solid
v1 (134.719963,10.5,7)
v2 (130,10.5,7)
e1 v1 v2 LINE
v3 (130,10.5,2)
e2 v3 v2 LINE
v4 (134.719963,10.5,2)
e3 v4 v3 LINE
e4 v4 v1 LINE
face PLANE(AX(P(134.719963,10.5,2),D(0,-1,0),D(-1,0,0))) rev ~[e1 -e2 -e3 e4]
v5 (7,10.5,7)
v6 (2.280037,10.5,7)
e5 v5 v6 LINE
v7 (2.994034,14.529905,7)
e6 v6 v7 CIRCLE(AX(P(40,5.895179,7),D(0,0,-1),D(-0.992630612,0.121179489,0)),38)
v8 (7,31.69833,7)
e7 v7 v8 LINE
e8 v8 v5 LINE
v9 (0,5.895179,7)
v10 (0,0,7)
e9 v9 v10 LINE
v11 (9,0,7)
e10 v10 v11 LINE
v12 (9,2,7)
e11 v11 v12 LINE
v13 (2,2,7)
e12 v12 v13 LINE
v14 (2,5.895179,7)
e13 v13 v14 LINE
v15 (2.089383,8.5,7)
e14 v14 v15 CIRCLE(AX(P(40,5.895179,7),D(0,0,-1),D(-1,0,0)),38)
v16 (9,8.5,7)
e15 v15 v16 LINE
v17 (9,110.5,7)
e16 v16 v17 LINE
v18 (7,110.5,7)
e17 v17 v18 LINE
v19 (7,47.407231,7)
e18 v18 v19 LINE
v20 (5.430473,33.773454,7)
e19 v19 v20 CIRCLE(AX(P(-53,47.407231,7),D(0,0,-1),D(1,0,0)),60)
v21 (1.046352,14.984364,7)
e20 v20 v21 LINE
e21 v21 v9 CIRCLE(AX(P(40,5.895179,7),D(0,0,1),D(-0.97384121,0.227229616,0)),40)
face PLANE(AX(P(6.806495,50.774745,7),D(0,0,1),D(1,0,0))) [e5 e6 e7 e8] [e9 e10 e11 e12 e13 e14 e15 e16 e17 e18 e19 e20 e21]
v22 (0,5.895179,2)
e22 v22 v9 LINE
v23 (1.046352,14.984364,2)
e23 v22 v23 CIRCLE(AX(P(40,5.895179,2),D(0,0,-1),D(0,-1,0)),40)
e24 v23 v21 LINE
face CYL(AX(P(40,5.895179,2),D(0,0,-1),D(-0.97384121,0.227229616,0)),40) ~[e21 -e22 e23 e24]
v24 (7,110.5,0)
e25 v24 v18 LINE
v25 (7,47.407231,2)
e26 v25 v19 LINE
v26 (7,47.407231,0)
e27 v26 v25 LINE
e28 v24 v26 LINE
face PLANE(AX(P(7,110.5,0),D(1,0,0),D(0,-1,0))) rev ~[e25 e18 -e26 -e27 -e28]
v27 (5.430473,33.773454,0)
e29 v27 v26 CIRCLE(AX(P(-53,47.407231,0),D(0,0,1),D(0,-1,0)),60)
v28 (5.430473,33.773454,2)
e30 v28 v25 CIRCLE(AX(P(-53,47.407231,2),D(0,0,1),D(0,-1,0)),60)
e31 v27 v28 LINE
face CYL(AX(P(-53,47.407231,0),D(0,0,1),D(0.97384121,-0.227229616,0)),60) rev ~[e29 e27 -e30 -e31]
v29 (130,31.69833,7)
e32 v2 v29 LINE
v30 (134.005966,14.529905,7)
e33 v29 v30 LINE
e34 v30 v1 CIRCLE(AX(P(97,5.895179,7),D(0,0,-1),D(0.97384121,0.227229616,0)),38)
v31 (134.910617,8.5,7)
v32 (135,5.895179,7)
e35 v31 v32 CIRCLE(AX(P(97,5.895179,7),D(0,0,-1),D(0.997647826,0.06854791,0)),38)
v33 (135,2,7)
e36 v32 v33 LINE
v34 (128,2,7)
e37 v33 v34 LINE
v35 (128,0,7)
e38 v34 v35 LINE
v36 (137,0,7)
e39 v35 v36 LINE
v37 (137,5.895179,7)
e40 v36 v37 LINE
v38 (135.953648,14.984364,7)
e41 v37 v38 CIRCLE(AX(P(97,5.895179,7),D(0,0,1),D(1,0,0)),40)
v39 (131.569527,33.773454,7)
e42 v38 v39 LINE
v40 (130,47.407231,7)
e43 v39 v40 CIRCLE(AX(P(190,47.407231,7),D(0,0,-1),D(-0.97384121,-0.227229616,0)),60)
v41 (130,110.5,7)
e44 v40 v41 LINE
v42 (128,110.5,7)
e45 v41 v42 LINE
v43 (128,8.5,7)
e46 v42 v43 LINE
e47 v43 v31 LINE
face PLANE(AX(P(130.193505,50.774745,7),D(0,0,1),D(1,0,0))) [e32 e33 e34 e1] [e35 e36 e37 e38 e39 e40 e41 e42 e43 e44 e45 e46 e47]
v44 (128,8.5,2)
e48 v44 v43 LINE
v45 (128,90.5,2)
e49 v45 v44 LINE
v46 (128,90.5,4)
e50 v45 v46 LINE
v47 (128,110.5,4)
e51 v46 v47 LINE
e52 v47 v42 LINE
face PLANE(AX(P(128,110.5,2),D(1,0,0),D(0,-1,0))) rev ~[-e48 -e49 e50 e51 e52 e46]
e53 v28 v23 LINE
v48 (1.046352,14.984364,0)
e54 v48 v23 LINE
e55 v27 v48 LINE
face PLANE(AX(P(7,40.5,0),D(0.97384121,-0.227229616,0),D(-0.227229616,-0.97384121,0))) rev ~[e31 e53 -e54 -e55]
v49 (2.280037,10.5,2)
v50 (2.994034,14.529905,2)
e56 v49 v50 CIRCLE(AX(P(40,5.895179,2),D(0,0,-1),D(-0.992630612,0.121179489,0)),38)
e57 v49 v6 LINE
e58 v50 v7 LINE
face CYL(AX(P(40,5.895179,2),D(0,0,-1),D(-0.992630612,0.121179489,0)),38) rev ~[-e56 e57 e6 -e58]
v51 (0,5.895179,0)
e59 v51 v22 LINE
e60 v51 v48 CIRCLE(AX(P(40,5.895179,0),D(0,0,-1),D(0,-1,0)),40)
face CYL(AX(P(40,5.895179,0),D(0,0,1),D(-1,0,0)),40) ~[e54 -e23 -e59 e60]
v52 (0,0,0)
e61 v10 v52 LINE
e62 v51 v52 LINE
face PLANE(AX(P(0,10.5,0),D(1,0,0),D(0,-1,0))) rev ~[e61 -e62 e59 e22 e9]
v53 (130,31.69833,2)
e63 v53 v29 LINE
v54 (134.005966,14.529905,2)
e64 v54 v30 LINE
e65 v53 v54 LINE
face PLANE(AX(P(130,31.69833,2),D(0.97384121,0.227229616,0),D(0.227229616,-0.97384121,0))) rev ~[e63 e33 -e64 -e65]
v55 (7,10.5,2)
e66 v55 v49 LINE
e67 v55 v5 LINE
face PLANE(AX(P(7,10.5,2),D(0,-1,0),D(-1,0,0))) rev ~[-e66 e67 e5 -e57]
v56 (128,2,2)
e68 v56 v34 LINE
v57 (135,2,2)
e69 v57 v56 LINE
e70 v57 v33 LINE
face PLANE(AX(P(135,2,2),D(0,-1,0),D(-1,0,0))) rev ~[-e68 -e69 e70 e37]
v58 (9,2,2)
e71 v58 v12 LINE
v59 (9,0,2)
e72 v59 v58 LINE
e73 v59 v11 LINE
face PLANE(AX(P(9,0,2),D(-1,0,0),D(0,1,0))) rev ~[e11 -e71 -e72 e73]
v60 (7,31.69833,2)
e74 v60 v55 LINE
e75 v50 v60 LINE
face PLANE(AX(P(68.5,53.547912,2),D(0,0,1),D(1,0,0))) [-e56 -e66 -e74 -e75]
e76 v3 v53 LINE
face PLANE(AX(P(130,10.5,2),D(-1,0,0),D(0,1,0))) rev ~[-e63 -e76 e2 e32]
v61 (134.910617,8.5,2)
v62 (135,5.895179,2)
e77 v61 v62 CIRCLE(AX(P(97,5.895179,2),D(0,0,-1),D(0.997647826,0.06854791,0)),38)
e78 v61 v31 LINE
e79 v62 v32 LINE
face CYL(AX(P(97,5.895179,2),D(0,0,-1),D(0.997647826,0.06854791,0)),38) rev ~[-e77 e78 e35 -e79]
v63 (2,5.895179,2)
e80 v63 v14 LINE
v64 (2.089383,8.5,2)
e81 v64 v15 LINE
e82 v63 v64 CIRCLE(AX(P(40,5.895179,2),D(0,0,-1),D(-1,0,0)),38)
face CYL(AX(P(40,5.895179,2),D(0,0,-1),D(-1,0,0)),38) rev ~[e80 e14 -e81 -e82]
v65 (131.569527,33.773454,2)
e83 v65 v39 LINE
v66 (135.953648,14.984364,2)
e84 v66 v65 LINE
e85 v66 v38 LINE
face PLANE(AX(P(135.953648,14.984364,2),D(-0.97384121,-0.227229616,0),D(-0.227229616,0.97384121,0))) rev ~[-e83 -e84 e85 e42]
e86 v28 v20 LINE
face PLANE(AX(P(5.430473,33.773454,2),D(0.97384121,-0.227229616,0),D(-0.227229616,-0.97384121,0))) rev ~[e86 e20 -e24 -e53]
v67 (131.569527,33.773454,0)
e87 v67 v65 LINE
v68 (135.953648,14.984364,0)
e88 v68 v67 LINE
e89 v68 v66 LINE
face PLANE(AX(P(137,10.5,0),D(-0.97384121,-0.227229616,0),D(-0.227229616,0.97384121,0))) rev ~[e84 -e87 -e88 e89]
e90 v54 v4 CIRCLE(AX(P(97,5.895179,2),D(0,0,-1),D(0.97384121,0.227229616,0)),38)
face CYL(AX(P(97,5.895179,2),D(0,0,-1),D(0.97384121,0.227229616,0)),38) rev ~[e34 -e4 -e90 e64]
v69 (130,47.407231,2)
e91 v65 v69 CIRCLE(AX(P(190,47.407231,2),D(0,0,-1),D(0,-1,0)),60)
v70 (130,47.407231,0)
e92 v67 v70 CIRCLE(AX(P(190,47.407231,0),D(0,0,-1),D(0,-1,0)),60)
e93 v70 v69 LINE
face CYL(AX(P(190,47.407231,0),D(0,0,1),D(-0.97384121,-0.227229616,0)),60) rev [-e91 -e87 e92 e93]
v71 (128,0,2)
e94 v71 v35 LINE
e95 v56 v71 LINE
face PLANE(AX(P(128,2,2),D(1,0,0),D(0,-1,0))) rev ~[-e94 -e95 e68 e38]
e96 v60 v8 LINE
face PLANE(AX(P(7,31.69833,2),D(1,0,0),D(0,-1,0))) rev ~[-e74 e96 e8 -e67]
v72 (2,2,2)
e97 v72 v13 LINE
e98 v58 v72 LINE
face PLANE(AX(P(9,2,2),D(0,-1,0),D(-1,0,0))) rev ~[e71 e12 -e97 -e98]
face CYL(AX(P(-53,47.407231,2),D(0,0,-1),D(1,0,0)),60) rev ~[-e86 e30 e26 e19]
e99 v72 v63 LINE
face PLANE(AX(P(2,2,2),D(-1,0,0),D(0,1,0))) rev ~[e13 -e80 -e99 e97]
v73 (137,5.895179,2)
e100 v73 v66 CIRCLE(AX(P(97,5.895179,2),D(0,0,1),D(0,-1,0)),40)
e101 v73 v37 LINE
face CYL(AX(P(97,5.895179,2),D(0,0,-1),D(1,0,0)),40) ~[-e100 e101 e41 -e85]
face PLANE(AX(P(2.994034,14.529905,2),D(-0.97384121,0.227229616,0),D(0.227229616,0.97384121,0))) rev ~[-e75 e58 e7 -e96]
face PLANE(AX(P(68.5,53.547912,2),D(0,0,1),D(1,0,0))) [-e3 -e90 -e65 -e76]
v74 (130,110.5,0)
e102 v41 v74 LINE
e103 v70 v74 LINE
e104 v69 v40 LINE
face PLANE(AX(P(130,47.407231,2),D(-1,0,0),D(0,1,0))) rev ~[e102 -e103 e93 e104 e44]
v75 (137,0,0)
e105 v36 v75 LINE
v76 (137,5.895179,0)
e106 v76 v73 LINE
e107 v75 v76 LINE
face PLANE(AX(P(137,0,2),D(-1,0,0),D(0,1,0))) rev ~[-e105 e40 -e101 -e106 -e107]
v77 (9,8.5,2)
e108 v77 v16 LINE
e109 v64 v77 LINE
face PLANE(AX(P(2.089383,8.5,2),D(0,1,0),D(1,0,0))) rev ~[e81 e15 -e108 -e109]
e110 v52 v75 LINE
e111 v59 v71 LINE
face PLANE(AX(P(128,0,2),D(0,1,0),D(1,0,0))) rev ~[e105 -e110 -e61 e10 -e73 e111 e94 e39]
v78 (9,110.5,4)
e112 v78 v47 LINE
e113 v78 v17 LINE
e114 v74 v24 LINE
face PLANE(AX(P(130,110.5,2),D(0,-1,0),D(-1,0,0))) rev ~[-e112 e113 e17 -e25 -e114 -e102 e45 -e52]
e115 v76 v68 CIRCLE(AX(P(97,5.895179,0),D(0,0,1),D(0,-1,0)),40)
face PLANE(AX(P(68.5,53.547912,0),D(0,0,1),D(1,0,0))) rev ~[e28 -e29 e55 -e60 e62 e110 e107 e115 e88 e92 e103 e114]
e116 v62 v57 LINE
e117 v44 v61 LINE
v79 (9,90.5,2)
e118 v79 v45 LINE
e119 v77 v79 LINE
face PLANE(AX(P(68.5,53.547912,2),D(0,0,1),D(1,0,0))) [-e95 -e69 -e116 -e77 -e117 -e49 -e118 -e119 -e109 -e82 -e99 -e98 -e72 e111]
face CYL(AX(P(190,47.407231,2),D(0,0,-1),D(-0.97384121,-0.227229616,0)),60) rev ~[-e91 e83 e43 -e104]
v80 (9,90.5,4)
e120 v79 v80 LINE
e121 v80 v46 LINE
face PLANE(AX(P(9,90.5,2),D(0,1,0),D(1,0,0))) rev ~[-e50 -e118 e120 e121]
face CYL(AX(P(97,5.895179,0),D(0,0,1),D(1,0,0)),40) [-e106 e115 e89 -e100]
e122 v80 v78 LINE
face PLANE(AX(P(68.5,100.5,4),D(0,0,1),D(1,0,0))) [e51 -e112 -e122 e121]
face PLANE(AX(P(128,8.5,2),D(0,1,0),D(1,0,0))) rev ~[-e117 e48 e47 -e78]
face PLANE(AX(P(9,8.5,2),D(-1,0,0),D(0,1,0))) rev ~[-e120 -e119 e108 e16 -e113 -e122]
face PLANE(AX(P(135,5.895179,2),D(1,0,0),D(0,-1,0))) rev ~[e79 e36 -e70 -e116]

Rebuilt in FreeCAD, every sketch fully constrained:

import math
import FreeCAD as App
import Part
import Sketcher
from FreeCAD import Vector


def edges_at(feature, points):
    """Names of the edges that pass closest to the given points."""
    edges = feature.Shape.Edges
    near = lambda p: min(range(len(edges)), key=lambda i: edges[i].distToShape(Part.Vertex(*p))[0])
    return sorted({f"Edge{near(p) + 1}" for p in points})


def add_polygon(sketch, points):
    """Adds a closed chain of lines whose ends are joined by coincident constraints."""
    first, n = sketch.GeometryCount, len(points)
    for a, b in zip(points, points[1:] + points[:1]):
        sketch.addGeometry(Part.LineSegment(App.Vector(*a, 0), App.Vector(*b, 0)), False)
    for i in range(n):
        sketch.addConstraint(Sketcher.Constraint("Coincident", first + i, 2, first + (i + 1) % n, 1))

doc = App.newDocument("Part")
body = doc.addObject("PartDesign::Body", "Body")

sketch1 = doc.addObject("Sketcher::SketchObject", "Sketch")
body.addObject(sketch1)
sketch1.AttachmentSupport = (doc.XY_Plane, [""])
sketch1.MapMode = "FlatFace"
add_polygon(sketch1, [(0, 10), (0, 0), (137, 0), (137, 10), (130, 40), (130, 110), (7, 110), (7, 40)])
sketch1.addConstraint([
    Sketcher.Constraint("Vertical", 0),
    Sketcher.Constraint("Horizontal", 1),
    Sketcher.Constraint("Vertical", 2),
    Sketcher.Constraint("Vertical", 4),
    Sketcher.Constraint("Horizontal", 5),
    Sketcher.Constraint("Vertical", 6),
    Sketcher.Constraint("Coincident", 0, 2, -1, 1),
    Sketcher.Constraint("Horizontal", 3, 2, 6, 2),
    Sketcher.Constraint("Horizontal", 2, 2, 7, 2),
    Sketcher.Constraint("Equal", 3, 7),
    Sketcher.Constraint("DistanceX", 1, 1, 1, 2, 137.0),
    Sketcher.Constraint("DistanceX", 5, 2, 5, 1, 123.0),
    Sketcher.Constraint("DistanceY", 4, 1, 4, 2, 70.0),
    Sketcher.Constraint("DistanceY", 0, 2, 0, 1, 10.5),
    Sketcher.Constraint("DistanceY", 2, 2, 3, 2, 30.0),
])
pad1 = doc.addObject("PartDesign::Pad", "Pad")
body.addObject(pad1)
pad1.Profile = sketch1
pad1.Length = 2
doc.recompute()

fillet = doc.addObject("PartDesign::Fillet", "Fillet")
body.addObject(fillet)
fillet.Base = (pad1, edges_at(pad1, [(137, 10.5, 1), (0, 10.5, 1)]))
fillet.Radius = 40
doc.recompute()

fillet2 = doc.addObject("PartDesign::Fillet", "Fillet001")
body.addObject(fillet2)
fillet2.Base = (fillet, edges_at(fillet, [(7, 40.5, 1), (130, 40.5, 1)]))
fillet2.Radius = 60

sketch2 = doc.addObject("Sketcher::SketchObject", "Sketch001")
body.addObject(sketch2)
sketch2.AttachmentSupport = (doc.XY_Plane, [""])
sketch2.MapMode = "FlatFace"
sketch2.AttachmentOffset = App.Placement(Vector(0, 0, 2), App.Rotation())
sketch2.addGeometry([
    Part.LineSegment(Vector(130, 110.5, 0), Vector(128, 110.5, 0)),
    Part.LineSegment(Vector(128, 110.5, 0), Vector(128, 8.5, 0)),
    Part.LineSegment(Vector(128, 8.5, 0), Vector(134.9, 8.5, 0)),
    Part.ArcOfCircle(Part.Circle(Vector(97, 5.9, 0), Vector(0, 0, 1), 38), math.radians(0), math.radians(3.93)),
    Part.LineSegment(Vector(135, 5.9, 0), Vector(135, 2, 0)),
    Part.LineSegment(Vector(135, 2, 0), Vector(128, 2, 0)),
    Part.LineSegment(Vector(128, 2, 0), Vector(128, 0, 0)),
    Part.LineSegment(Vector(128, 0, 0), Vector(137, 0, 0)),
    Part.LineSegment(Vector(137, 0, 0), Vector(137, 5.9, 0)),
    Part.ArcOfCircle(Part.Circle(Vector(97, 5.9, 0), Vector(0, 0, 1), 40), math.radians(0), math.radians(13.13)),
    Part.LineSegment(Vector(136, 15, 0), Vector(131.6, 33.8, 0)),
    Part.ArcOfCircle(Part.Circle(Vector(190, 47.4, 0), Vector(0, 0, 1), 60), math.radians(180), math.radians(193.13)),
    Part.LineSegment(Vector(130, 47.4, 0), Vector(130, 110.5, 0)),
    Part.ArcOfCircle(Part.Circle(Vector(97, 5.9, 0), Vector(0, 0, 1), 38), math.radians(6.96), math.radians(13.13)),
    Part.LineSegment(Vector(134.7, 10.5, 0), Vector(130, 10.5, 0)),
    Part.LineSegment(Vector(130, 10.5, 0), Vector(130, 31.7, 0)),
    Part.LineSegment(Vector(130, 31.7, 0), Vector(134, 14.5, 0)),
    Part.LineSegment(Vector(9, 8.5, 0), Vector(9, 110.5, 0)),
    Part.LineSegment(Vector(9, 110.5, 0), Vector(7, 110.5, 0)),
    Part.LineSegment(Vector(7, 110.5, 0), Vector(7, 47.4, 0)),
    Part.ArcOfCircle(Part.Circle(Vector(-53, 47.4, 0), Vector(0, 0, 1), 60), math.radians(-13.13), math.radians(0)),
    Part.LineSegment(Vector(5.4, 33.8, 0), Vector(1, 15, 0)),
    Part.ArcOfCircle(Part.Circle(Vector(40, 5.9, 0), Vector(0, 0, 1), 40), math.radians(166.87), math.radians(180)),
    Part.LineSegment(Vector(0, 5.9, 0), Vector(0, 0, 0)),
    Part.LineSegment(Vector(0, 0, 0), Vector(9, 0, 0)),
    Part.LineSegment(Vector(9, 0, 0), Vector(9, 2, 0)),
    Part.LineSegment(Vector(9, 2, 0), Vector(2, 2, 0)),
    Part.LineSegment(Vector(2, 2, 0), Vector(2, 5.9, 0)),
    Part.ArcOfCircle(Part.Circle(Vector(40, 5.9, 0), Vector(0, 0, 1), 38), math.radians(176.07), math.radians(180)),
    Part.LineSegment(Vector(2.1, 8.5, 0), Vector(9, 8.5, 0)),
    Part.LineSegment(Vector(7, 10.5, 0), Vector(2.3, 10.5, 0)),
    Part.ArcOfCircle(Part.Circle(Vector(40, 5.9, 0), Vector(0, 0, 1), 38), math.radians(166.87), math.radians(173.04)),
    Part.LineSegment(Vector(3, 14.5, 0), Vector(7, 31.7, 0)),
    Part.LineSegment(Vector(7, 31.7, 0), Vector(7, 10.5, 0)),
], False)
sketch2.addConstraint([
    Sketcher.Constraint("Coincident", 0, 2, 1, 1),
    Sketcher.Constraint("Coincident", 1, 2, 2, 1),
    Sketcher.Constraint("Coincident", 2, 2, 3, 2),
    Sketcher.Constraint("Tangent", 3, 1, 4, 1),
    Sketcher.Constraint("Coincident", 4, 2, 5, 1),
    Sketcher.Constraint("Coincident", 5, 2, 6, 1),
    Sketcher.Constraint("Coincident", 6, 2, 7, 1),
    Sketcher.Constraint("Coincident", 7, 2, 8, 1),
    Sketcher.Constraint("Tangent", 8, 2, 9, 1),
    Sketcher.Constraint("Tangent", 9, 2, 10, 1),
    Sketcher.Constraint("Tangent", 10, 2, 11, 2),
    Sketcher.Constraint("Tangent", 11, 1, 12, 1),
    Sketcher.Constraint("Coincident", 12, 2, 0, 1),
    Sketcher.Constraint("Coincident", 13, 1, 14, 1),
    Sketcher.Constraint("Coincident", 14, 2, 15, 1),
    Sketcher.Constraint("Coincident", 15, 2, 16, 1),
    Sketcher.Constraint("Tangent", 16, 2, 13, 2),
    Sketcher.Constraint("Coincident", 17, 2, 18, 1),
    Sketcher.Constraint("Coincident", 18, 2, 19, 1),
    Sketcher.Constraint("Tangent", 19, 2, 20, 2),
    Sketcher.Constraint("Tangent", 20, 1, 21, 1),
    Sketcher.Constraint("Tangent", 21, 2, 22, 1),
    Sketcher.Constraint("Tangent", 22, 2, 23, 1),
    Sketcher.Constraint("Coincident", 23, 2, 24, 1),
    Sketcher.Constraint("Coincident", 24, 2, 25, 1),
    Sketcher.Constraint("Coincident", 25, 2, 26, 1),
    Sketcher.Constraint("Coincident", 26, 2, 27, 1),
    Sketcher.Constraint("Tangent", 27, 2, 28, 2),
    Sketcher.Constraint("Coincident", 28, 1, 29, 1),
    Sketcher.Constraint("Coincident", 29, 2, 17, 1),
    Sketcher.Constraint("Coincident", 30, 2, 31, 2),
    Sketcher.Constraint("Tangent", 31, 1, 32, 1),
    Sketcher.Constraint("Coincident", 32, 2, 33, 1),
    Sketcher.Constraint("Coincident", 33, 2, 30, 1),
    Sketcher.Constraint("Horizontal", 0),
    Sketcher.Constraint("Vertical", 1),
    Sketcher.Constraint("Horizontal", 2),
    Sketcher.Constraint("Vertical", 4),
    Sketcher.Constraint("Horizontal", 5),
    Sketcher.Constraint("Vertical", 6),
    Sketcher.Constraint("Horizontal", 7),
    Sketcher.Constraint("Vertical", 8),
    Sketcher.Constraint("Vertical", 12),
    Sketcher.Constraint("Horizontal", 14),
    Sketcher.Constraint("Vertical", 15),
    Sketcher.Constraint("Vertical", 17),
    Sketcher.Constraint("Horizontal", 18),
    Sketcher.Constraint("Vertical", 19),
    Sketcher.Constraint("Vertical", 23),
    Sketcher.Constraint("Horizontal", 24),
    Sketcher.Constraint("Vertical", 25),
    Sketcher.Constraint("Horizontal", 26),
    Sketcher.Constraint("Vertical", 27),
    Sketcher.Constraint("Horizontal", 29),
    Sketcher.Constraint("Horizontal", 30),
    Sketcher.Constraint("Vertical", 33),
    Sketcher.Constraint("Coincident", 23, 2, -1, 1),
    Sketcher.Constraint("Coincident", 9, 3, 3, 3),
    Sketcher.Constraint("Coincident", 13, 3, 3, 3),
    Sketcher.Constraint("Coincident", 28, 3, 22, 3),
    Sketcher.Constraint("Coincident", 31, 3, 22, 3),
    Sketcher.Constraint("Equal", 3, 13),
    Sketcher.Constraint("Equal", 11, 20),
    Sketcher.Constraint("Equal", 9, 22),
    Sketcher.Constraint("Equal", 13, 28),
    Sketcher.Constraint("Equal", 28, 31),
    Sketcher.Constraint("PointOnObject", 6, 2, -1),
    Sketcher.Constraint("Parallel", 10, 16),
    Sketcher.Constraint("Parallel", 21, 32),
    Sketcher.Constraint("Horizontal", 11, 3, 20, 3),
    Sketcher.Constraint("Horizontal", 13, 3, 22, 3),
    Sketcher.Constraint("Horizontal", 12, 2, 17, 2),
    Sketcher.Constraint("Horizontal", 10, 2, 20, 1),
    Sketcher.Constraint("Horizontal", 5, 2, 25, 2),
    Sketcher.Constraint("Horizontal", 2, 2, 28, 1),
    Sketcher.Constraint("Horizontal", 14, 2, 30, 2),
    Sketcher.Constraint("Horizontal", 15, 2, 32, 2),
    Sketcher.Constraint("Vertical", 1, 2, 5, 2),
    Sketcher.Constraint("Vertical", 12, 2, 14, 2),
    Sketcher.Constraint("Vertical", 17, 2, 24, 2),
    Sketcher.Constraint("Equal", 0, 18),
    Sketcher.Constraint("Equal", 18, 6),
    Sketcher.Constraint("Radius", 3, 38.0),
    Sketcher.Constraint("Radius", 9, 40.0),
    Sketcher.Constraint("Radius", 11, 60.0),
    Sketcher.Constraint("DistanceX", 0, 2, 0, 1, 2.0),
    Sketcher.Constraint("DistanceX", 5, 2, 5, 1, 7.0),
    Sketcher.Constraint("DistanceY", 1, 2, 1, 1, 102.0),
    Sketcher.Constraint("DistanceX", -1, 1, 3, 3, 97.0),
    Sketcher.Constraint("DistanceY", 2, 2, 13, 1, 2.0),
    Sketcher.Constraint("DistanceY", -1, 1, 0, 2, 110.5),
    Sketcher.Constraint("DistanceY", 4, 2, 4, 1, 3.895179),
    Sketcher.Constraint("DistanceY", 12, 1, 12, 2, 63.092769),
])
pad2 = doc.addObject("PartDesign::Pad", "Pad001")
body.addObject(pad2)
pad2.Profile = sketch2
pad2.Length = 5

sketch3 = doc.addObject("Sketcher::SketchObject", "Sketch002")
body.addObject(sketch3)
sketch3.AttachmentSupport = (doc.XY_Plane, [""])
sketch3.MapMode = "FlatFace"
sketch3.AttachmentOffset = App.Placement(Vector(0, 0, 2), App.Rotation())
add_polygon(sketch3, [(9, 110), (9, 90), (128, 90), (128, 110)])
sketch3.addConstraint([
    Sketcher.Constraint("Vertical", 0),
    Sketcher.Constraint("Horizontal", 1),
    Sketcher.Constraint("Vertical", 2),
    Sketcher.Constraint("Horizontal", 3),
    Sketcher.Constraint("DistanceX", 1, 1, 1, 2, 119.0),
    Sketcher.Constraint("DistanceY", 0, 2, 0, 1, 20.0),
    Sketcher.Constraint("DistanceX", -1, 1, 0, 2, 9.0),
    Sketcher.Constraint("DistanceY", -1, 1, 0, 2, 90.5),
])
pad3 = doc.addObject("PartDesign::Pad", "Pad002")
body.addObject(pad3)
pad3.Profile = sketch3
pad3.Length = 2

doc.recompute()
